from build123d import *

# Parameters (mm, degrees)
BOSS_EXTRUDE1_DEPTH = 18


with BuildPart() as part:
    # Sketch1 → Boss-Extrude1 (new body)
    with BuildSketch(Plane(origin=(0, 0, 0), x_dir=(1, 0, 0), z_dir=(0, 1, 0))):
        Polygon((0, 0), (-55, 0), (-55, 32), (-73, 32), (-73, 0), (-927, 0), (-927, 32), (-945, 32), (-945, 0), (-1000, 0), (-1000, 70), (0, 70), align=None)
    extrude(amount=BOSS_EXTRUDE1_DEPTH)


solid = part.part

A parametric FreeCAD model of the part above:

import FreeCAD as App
import Part
import Sketcher
Q = App.Units.Quantity

doc = App.newDocument("Part")
params = doc.addObject("Spreadsheet::Sheet", "Params")
for row, (alias, value) in enumerate([
    ("sketch1_width", "55 mm"),
    ("sketch1_width2", "1000 mm"),
    ("sketch1_width3", "18 mm"),
    ("sketch1_height", "70 mm"),
    ("sketch1_height2", "32 mm"),
    ("pad1_length", "18 mm"),
], start=1):
    params.set(f"A{row}", alias)
    params.set(f"B{row}", "=" + value)
    params.setAlias(f"B{row}", alias)

body = doc.addObject("PartDesign::Body", "Body")

# Sketch on XZ plane
sketch1 = body.newObject("Sketcher::SketchObject", "Sketch")
sketch1.AttachmentSupport = (doc.getObject("XZ_Plane"), [""])
sketch1.MapMode = "FlatFace"
sketch1.addGeometry(Part.LineSegment(App.Vector(-55, 0, 0), App.Vector(0, 0, 0)), False)
sketch1.addGeometry(Part.LineSegment(App.Vector(0, 0, 0), App.Vector(0, -70, 0)), False)
sketch1.addGeometry(Part.LineSegment(App.Vector(0, -70, 0), App.Vector(-1000, -70, 0)), False)
sketch1.addGeometry(Part.LineSegment(App.Vector(-1000, -70, 0), App.Vector(-1000, 0, 0)), False)
sketch1.addGeometry(Part.LineSegment(App.Vector(-1000, 0, 0), App.Vector(-945, 0, 0)), False)
sketch1.addGeometry(Part.LineSegment(App.Vector(-945, 0, 0), App.Vector(-945, -32, 0)), False)
sketch1.addGeometry(Part.LineSegment(App.Vector(-945, -32, 0), App.Vector(-927, -32, 0)), False)
sketch1.addGeometry(Part.LineSegment(App.Vector(-927, -32, 0), App.Vector(-927, 0, 0)), False)
sketch1.addGeometry(Part.LineSegment(App.Vector(-927, 0, 0), App.Vector(-73, 0, 0)), False)
sketch1.addGeometry(Part.LineSegment(App.Vector(-73, 0, 0), App.Vector(-73, -32, 0)), False)
sketch1.addGeometry(Part.LineSegment(App.Vector(-73, -32, 0), App.Vector(-55, -32, 0)), False)
sketch1.addGeometry(Part.LineSegment(App.Vector(-55, -32, 0), App.Vector(-55, 0, 0)), False)
sketch1.addConstraint(Sketcher.Constraint("Coincident", 0, 2, 1, 1))
sketch1.addConstraint(Sketcher.Constraint("Coincident", 1, 2, 2, 1))
sketch1.addConstraint(Sketcher.Constraint("Coincident", 2, 2, 3, 1))
sketch1.addConstraint(Sketcher.Constraint("Coincident", 3, 2, 4, 1))
sketch1.addConstraint(Sketcher.Constraint("Coincident", 4, 2, 5, 1))
sketch1.addConstraint(Sketcher.Constraint("Coincident", 5, 2, 6, 1))
sketch1.addConstraint(Sketcher.Constraint("Coincident", 6, 2, 7, 1))
sketch1.addConstraint(Sketcher.Constraint("Coincident", 7, 2, 8, 1))
sketch1.addConstraint(Sketcher.Constraint("Coincident", 8, 2, 9, 1))
sketch1.addConstraint(Sketcher.Constraint("Coincident", 9, 2, 10, 1))
sketch1.addConstraint(Sketcher.Constraint("Coincident", 10, 2, 11, 1))
sketch1.addConstraint(Sketcher.Constraint("Coincident", 11, 2, 0, 1))
sketch1.addConstraint(Sketcher.Constraint("Horizontal", 0))
sketch1.addConstraint(Sketcher.Constraint("Vertical", 1))
sketch1.addConstraint(Sketcher.Constraint("Horizontal", 2))
sketch1.addConstraint(Sketcher.Constraint("Vertical", 3))
sketch1.addConstraint(Sketcher.Constraint("Horizontal", 4))
sketch1.addConstraint(Sketcher.Constraint("Vertical", 5))
sketch1.addConstraint(Sketcher.Constraint("Horizontal", 6))
sketch1.addConstraint(Sketcher.Constraint("Vertical", 7))
sketch1.addConstraint(Sketcher.Constraint("Horizontal", 8))
sketch1.addConstraint(Sketcher.Constraint("Vertical", 9))
sketch1.addConstraint(Sketcher.Constraint("Horizontal", 10))
sketch1.addConstraint(Sketcher.Constraint("Vertical", 11))
sketch1.addConstraint(Sketcher.Constraint("Coincident", 0, 2, -1, 1))
sketch1.addConstraint(Sketcher.Constraint("PointOnObject", 3, 2, -1))
sketch1.addConstraint(Sketcher.Constraint("PointOnObject", 7, 2, -1))
sketch1.addConstraint(Sketcher.Constraint("Horizontal", 6, 2, 9, 2))
sketch1.addConstraint(Sketcher.Constraint("Equal", 0, 4))
sketch1.addConstraint(Sketcher.Constraint("Equal", 6, 10))
sketch1.addConstraint(Sketcher.Constraint("DistanceX", 0, 1, 0, 2, Q("55 mm")))
sketch1.addConstraint(Sketcher.Constraint("DistanceX", 2, 2, 2, 1, Q("1000 mm")))
sketch1.addConstraint(Sketcher.Constraint("DistanceX", 6, 1, 6, 2, Q("18 mm")))
sketch1.addConstraint(Sketcher.Constraint("DistanceY", 1, 2, 1, 1, Q("70 mm")))
sketch1.addConstraint(Sketcher.Constraint("DistanceY", 5, 2, 5, 1, Q("32 mm")))
sketch1.setExpression("Constraints[30]", "Params.sketch1_width")
sketch1.setExpression("Constraints[31]", "Params.sketch1_width2")
sketch1.setExpression("Constraints[32]", "Params.sketch1_width3")
sketch1.setExpression("Constraints[33]", "Params.sketch1_height")
sketch1.setExpression("Constraints[34]", "Params.sketch1_height2")
pad1 = body.newObject("PartDesign::Pad", "Pad")
pad1.Profile = sketch1
pad1.setExpression("Length", "Params.pad1_length")
pad1.Reversed = True

doc.recompute()
